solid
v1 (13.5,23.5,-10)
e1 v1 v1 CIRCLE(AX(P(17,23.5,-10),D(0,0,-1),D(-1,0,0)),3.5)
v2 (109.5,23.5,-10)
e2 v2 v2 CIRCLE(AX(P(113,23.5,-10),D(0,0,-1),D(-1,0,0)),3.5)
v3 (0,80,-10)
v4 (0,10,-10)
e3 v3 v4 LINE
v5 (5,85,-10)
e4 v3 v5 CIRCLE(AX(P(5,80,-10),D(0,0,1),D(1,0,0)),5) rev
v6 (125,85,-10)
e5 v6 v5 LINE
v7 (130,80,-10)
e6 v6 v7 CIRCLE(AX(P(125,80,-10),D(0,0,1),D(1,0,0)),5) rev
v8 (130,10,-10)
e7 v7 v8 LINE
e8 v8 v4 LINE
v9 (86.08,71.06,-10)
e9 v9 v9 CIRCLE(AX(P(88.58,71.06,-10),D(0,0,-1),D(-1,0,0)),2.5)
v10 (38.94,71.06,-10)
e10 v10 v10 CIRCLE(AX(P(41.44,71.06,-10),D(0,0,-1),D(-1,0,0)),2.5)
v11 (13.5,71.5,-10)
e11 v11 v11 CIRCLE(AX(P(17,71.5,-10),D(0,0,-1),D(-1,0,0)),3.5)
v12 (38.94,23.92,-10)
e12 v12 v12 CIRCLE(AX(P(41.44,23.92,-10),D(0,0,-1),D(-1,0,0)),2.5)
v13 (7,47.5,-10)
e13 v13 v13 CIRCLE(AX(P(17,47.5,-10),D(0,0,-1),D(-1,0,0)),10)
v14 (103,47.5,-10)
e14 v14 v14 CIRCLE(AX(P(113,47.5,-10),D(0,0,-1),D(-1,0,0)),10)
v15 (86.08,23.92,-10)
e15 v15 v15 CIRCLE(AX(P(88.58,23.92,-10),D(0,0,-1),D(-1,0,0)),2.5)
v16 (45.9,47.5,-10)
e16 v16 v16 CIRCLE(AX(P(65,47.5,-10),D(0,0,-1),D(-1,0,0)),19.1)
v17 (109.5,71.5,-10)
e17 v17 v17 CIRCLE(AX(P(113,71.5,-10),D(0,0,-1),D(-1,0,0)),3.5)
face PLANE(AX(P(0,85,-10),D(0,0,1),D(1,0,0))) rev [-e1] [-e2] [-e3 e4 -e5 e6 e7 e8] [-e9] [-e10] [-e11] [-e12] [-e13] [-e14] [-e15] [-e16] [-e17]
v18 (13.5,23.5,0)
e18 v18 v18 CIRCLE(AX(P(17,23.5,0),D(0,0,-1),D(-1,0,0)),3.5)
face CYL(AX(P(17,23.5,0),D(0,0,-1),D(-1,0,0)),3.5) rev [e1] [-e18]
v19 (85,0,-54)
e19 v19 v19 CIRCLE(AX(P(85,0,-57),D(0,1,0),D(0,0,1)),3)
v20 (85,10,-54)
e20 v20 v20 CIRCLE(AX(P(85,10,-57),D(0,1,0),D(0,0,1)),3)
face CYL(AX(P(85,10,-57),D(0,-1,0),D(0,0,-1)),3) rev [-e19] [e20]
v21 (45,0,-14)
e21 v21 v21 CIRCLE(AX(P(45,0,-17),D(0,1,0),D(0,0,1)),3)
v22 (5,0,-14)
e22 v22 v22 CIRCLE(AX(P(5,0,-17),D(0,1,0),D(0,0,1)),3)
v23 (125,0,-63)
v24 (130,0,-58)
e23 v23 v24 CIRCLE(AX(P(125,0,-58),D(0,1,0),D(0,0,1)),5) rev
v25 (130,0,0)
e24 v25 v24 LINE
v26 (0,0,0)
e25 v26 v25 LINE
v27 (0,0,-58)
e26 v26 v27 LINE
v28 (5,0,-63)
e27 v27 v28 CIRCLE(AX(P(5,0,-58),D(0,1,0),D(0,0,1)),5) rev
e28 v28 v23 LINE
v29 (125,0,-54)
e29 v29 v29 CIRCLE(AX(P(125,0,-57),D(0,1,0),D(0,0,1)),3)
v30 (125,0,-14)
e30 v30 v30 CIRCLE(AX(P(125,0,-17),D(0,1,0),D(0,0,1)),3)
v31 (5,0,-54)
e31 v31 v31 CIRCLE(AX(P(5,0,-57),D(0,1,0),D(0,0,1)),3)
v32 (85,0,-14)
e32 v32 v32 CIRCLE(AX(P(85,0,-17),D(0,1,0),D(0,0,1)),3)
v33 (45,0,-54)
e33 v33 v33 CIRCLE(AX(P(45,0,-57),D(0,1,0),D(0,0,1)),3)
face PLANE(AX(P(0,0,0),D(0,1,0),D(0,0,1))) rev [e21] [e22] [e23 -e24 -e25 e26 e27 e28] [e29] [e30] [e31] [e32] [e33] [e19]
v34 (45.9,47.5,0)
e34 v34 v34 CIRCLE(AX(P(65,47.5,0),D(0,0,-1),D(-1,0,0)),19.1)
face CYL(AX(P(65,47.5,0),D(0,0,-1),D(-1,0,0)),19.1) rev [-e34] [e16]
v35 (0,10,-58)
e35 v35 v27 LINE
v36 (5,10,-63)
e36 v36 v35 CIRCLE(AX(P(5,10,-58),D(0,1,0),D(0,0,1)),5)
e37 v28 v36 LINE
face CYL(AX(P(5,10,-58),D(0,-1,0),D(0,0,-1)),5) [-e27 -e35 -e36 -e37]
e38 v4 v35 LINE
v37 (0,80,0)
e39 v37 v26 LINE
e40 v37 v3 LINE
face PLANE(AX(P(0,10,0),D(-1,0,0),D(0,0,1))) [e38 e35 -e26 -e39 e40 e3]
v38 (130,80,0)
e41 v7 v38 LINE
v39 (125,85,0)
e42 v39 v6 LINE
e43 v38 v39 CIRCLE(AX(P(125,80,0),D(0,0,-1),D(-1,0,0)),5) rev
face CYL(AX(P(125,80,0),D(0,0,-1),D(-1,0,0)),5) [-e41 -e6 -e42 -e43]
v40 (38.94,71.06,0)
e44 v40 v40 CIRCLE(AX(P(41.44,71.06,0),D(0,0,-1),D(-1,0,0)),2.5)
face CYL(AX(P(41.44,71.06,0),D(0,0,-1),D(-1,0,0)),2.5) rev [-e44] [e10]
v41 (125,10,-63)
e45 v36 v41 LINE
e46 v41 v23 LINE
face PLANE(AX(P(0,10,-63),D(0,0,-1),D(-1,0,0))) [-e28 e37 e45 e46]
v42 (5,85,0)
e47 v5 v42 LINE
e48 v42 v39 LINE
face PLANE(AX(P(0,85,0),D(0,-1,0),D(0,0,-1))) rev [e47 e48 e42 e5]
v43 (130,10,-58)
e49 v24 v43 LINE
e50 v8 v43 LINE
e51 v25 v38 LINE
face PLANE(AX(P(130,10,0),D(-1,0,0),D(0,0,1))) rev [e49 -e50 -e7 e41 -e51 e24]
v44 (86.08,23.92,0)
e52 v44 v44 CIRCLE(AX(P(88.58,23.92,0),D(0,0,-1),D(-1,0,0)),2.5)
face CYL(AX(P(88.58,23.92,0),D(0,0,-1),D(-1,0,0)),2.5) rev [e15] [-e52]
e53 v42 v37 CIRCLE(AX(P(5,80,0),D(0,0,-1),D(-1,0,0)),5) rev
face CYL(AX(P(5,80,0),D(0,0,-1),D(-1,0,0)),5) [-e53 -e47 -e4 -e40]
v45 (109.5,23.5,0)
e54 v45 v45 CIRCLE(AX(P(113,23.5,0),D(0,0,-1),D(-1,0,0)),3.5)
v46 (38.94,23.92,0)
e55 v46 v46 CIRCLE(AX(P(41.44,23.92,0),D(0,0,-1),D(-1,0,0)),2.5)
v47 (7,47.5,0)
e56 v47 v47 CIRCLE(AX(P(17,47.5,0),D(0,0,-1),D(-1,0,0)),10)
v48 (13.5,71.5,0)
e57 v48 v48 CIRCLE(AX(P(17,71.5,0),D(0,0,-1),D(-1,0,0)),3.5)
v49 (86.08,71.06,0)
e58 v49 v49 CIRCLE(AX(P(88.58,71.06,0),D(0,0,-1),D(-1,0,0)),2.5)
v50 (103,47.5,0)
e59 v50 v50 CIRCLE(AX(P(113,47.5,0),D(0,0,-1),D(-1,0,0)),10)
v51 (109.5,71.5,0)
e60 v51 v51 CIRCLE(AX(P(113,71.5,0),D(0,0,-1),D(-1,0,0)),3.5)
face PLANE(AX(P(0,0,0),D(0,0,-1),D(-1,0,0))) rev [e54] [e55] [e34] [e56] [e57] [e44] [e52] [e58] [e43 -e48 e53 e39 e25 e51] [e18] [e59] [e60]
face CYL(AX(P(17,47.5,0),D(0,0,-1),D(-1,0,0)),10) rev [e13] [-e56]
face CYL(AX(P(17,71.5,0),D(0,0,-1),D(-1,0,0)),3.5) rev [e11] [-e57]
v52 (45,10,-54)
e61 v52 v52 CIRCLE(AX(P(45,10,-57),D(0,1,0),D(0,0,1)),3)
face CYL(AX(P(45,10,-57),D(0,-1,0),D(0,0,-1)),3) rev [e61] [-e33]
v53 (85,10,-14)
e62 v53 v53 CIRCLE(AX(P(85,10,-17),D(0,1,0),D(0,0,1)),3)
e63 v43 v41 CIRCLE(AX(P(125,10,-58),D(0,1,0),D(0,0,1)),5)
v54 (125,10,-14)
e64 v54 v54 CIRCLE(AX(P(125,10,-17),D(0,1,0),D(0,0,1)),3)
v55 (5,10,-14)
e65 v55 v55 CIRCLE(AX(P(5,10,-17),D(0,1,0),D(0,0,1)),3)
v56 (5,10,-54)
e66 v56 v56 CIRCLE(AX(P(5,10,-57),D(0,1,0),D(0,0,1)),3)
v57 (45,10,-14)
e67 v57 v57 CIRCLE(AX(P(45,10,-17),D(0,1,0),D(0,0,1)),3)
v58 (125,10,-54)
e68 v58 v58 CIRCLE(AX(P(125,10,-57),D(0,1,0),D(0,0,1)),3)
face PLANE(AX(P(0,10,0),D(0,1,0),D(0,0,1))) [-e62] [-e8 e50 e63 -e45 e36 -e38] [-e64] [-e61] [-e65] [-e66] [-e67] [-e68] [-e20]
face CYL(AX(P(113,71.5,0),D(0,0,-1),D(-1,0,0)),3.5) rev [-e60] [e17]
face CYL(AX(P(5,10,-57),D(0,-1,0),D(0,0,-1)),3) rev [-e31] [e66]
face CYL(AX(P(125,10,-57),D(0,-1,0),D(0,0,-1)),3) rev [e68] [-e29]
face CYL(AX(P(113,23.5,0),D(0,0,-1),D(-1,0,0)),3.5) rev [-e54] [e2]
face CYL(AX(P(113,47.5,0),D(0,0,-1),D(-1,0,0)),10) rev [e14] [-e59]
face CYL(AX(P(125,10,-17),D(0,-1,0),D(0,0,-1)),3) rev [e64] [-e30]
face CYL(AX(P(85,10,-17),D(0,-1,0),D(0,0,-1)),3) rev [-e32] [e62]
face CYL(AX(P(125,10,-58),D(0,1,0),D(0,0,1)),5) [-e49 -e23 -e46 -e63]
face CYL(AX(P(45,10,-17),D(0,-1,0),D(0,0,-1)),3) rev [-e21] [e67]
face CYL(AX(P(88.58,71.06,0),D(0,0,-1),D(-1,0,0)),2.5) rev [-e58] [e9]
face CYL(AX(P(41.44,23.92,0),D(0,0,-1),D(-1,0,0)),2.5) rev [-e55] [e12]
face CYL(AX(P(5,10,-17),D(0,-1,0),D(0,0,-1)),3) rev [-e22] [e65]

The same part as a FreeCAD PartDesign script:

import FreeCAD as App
import Part
import Sketcher
Q = App.Units.Quantity


def edges_at(feature, points):
    """Names of the edges that pass closest to the given points."""
    edges = feature.Shape.Edges
    near = lambda p: min(range(len(edges)), key=lambda i: edges[i].distToShape(Part.Vertex(*p))[0])
    return sorted({f"Edge{near(p) + 1}" for p in points})


def add_polygon(sketch, points):
    """Adds a closed chain of lines whose ends are joined by coincident constraints."""
    first, n = sketch.GeometryCount, len(points)
    for a, b in zip(points, points[1:] + points[:1]):
        sketch.addGeometry(Part.LineSegment(App.Vector(*a, 0), App.Vector(*b, 0)), False)
    for i in range(n):
        sketch.addConstraint(Sketcher.Constraint("Coincident", first + i, 2, first + (i + 1) % n, 1))

doc = App.newDocument("Part")
body = doc.addObject("PartDesign::Body", "Body")

# Sketch on XZ plane
sketch1 = doc.addObject("Sketcher::SketchObject", "Sketch")
body.addObject(sketch1)
sketch1.AttachmentSupport = (doc.XZ_Plane, [""])
sketch1.MapMode = "FlatFace"
add_polygon(sketch1, [(0, -63), (0, 37), (130, 37), (130, -63)])  # lines 0-3
sketch1.addGeometry(Part.Circle(App.Vector(5, -17, 0), App.Vector(0, 0, 1), 3), False)  # 4
sketch1.addGeometry(Part.Circle(App.Vector(45, -17, 0), App.Vector(0, 0, 1), 3), False)  # 5
sketch1.addGeometry(Part.Circle(App.Vector(85, -17, 0), App.Vector(0, 0, 1), 3), False)  # 6
sketch1.addGeometry(Part.Circle(App.Vector(125, -17, 0), App.Vector(0, 0, 1), 3), False)  # 7
sketch1.addGeometry(Part.Circle(App.Vector(5, -57, 0), App.Vector(0, 0, 1), 3), False)  # 8
sketch1.addGeometry(Part.Circle(App.Vector(45, -57, 0), App.Vector(0, 0, 1), 3), False)  # 9
sketch1.addGeometry(Part.Circle(App.Vector(85, -57, 0), App.Vector(0, 0, 1), 3), False)  # 10
sketch1.addGeometry(Part.Circle(App.Vector(125, -57, 0), App.Vector(0, 0, 1), 3), False)  # 11
sketch1.addConstraint(Sketcher.Constraint("Vertical", 0))
sketch1.addConstraint(Sketcher.Constraint("Horizontal", 1))
sketch1.addConstraint(Sketcher.Constraint("Vertical", 2))
sketch1.addConstraint(Sketcher.Constraint("Horizontal", 3))
sketch1.addConstraint(Sketcher.Constraint("Equal", 4, 5))
sketch1.addConstraint(Sketcher.Constraint("Equal", 5, 6))
sketch1.addConstraint(Sketcher.Constraint("Equal", 6, 7))
sketch1.addConstraint(Sketcher.Constraint("Equal", 7, 8))
sketch1.addConstraint(Sketcher.Constraint("Equal", 8, 9))
sketch1.addConstraint(Sketcher.Constraint("Equal", 9, 10))
sketch1.addConstraint(Sketcher.Constraint("Equal", 10, 11))
sketch1.addConstraint(Sketcher.Constraint("PointOnObject", 0, 2, -2))
sketch1.addConstraint(Sketcher.Constraint("Horizontal", 4, 3, 5, 3))
sketch1.addConstraint(Sketcher.Constraint("Horizontal", 5, 3, 6, 3))
sketch1.addConstraint(Sketcher.Constraint("Horizontal", 6, 3, 7, 3))
sketch1.addConstraint(Sketcher.Constraint("Horizontal", 8, 3, 9, 3))
sketch1.addConstraint(Sketcher.Constraint("Horizontal", 9, 3, 10, 3))
sketch1.addConstraint(Sketcher.Constraint("Horizontal", 10, 3, 11, 3))
sketch1.addConstraint(Sketcher.Constraint("Vertical", 4, 3, 8, 3))
sketch1.addConstraint(Sketcher.Constraint("Vertical", 5, 3, 9, 3))
sketch1.addConstraint(Sketcher.Constraint("Vertical", 6, 3, 10, 3))
sketch1.addConstraint(Sketcher.Constraint("Vertical", 7, 3, 11, 3))
sketch1.addConstraint(Sketcher.Constraint("Diameter", 4, Q("6 mm")))
sketch1.addConstraint(Sketcher.Constraint("DistanceX", 1, 1, 1, 2, Q("130 mm")))
sketch1.addConstraint(Sketcher.Constraint("DistanceY", 0, 1, 0, 2, Q("100 mm")))
sketch1.addConstraint(Sketcher.Constraint("DistanceX", -1, 1, 4, 3, Q("5 mm")))
sketch1.addConstraint(Sketcher.Constraint("DistanceY", 4, 3, -1, 1, Q("17 mm")))
sketch1.addConstraint(Sketcher.Constraint("DistanceX", -1, 1, 5, 3, Q("45 mm")))
sketch1.addConstraint(Sketcher.Constraint("DistanceX", -1, 1, 6, 3, Q("85 mm")))
sketch1.addConstraint(Sketcher.Constraint("DistanceX", -1, 1, 7, 3, Q("125 mm")))
sketch1.addConstraint(Sketcher.Constraint("DistanceY", 8, 3, -1, 1, Q("57 mm")))
sketch1.addConstraint(Sketcher.Constraint("DistanceY", -1, 1, 0, 2, Q("37 mm")))
pad1 = doc.addObject("PartDesign::Pad", "Pad")
body.addObject(pad1)
pad1.Profile = sketch1
pad1.Length = 10
pad1.Reversed = True

# Sketch on XZ plane
sketch2 = doc.addObject("Sketcher::SketchObject", "Sketch001")
body.addObject(sketch2)
sketch2.AttachmentSupport = (doc.XZ_Plane, [""])
sketch2.MapMode = "FlatFace"
sketch2.AttachmentOffset = App.Placement(App.Vector(0, 0, -10), App.Rotation())
add_polygon(sketch2, [(0, 29), (0, 37), (130, 37), (130, 29)])  # lines 0-3
sketch2.addConstraint(Sketcher.Constraint("Vertical", 0))
sketch2.addConstraint(Sketcher.Constraint("Horizontal", 1))
sketch2.addConstraint(Sketcher.Constraint("Vertical", 2))
sketch2.addConstraint(Sketcher.Constraint("Horizontal", 3))
sketch2.addConstraint(Sketcher.Constraint("PointOnObject", 0, 2, -2))
sketch2.addConstraint(Sketcher.Constraint("DistanceX", 1, 1, 1, 2, Q("130 mm")))
sketch2.addConstraint(Sketcher.Constraint("DistanceY", -1, 1, 0, 2, Q("37 mm")))
sketch2.addConstraint(Sketcher.Constraint("DistanceY", 0, 1, 0, 2, Q("8.023003 mm")))
pad2 = doc.addObject("PartDesign::Pad", "Pad001")
body.addObject(pad2)
pad2.Profile = sketch2
pad2.Length = 75
pad2.Reversed = True
doc.recompute()

fillet = doc.addObject("PartDesign::Fillet", "Fillet")
body.addObject(fillet)
fillet.Base = (pad2, edges_at(pad2, [
    (0, 85, 32.988),
    (130, 85, 32.988),
    (130, 5, -63),
    (0, 5, -63),
]))
fillet.Radius = 5

# Sketch on XZ plane
sketch3 = doc.addObject("Sketcher::SketchObject", "Sketch002")
body.addObject(sketch3)
sketch3.AttachmentSupport = (doc.XZ_Plane, [""])
sketch3.MapMode = "FlatFace"
sketch3.AttachmentOffset = App.Placement(App.Vector(0, 0, -85), App.Rotation())
add_polygon(sketch3, [(0, 29), (0, 37), (130, 37), (130, 29)])  # lines 0-3
sketch3.addConstraint(Sketcher.Constraint("Vertical", 0))
sketch3.addConstraint(Sketcher.Constraint("Horizontal", 1))
sketch3.addConstraint(Sketcher.Constraint("Vertical", 2))
sketch3.addConstraint(Sketcher.Constraint("Horizontal", 3))
sketch3.addConstraint(Sketcher.Constraint("PointOnObject", 0, 2, -2))
sketch3.addConstraint(Sketcher.Constraint("DistanceX", 1, 1, 1, 2, Q("130 mm")))
sketch3.addConstraint(Sketcher.Constraint("DistanceY", -1, 1, 0, 2, Q("37 mm")))
sketch3.addConstraint(Sketcher.Constraint("DistanceY", 0, 1, 0, 2, Q("8.023003 mm")))
pocket1 = doc.addObject("PartDesign::Pocket", "Pocket")
body.addObject(pocket1)
pocket1.Profile = sketch3
pocket1.Length = 75
pocket1.Reversed = True

# Sketch on XY plane
sketch4 = doc.addObject("Sketcher::SketchObject", "Sketch003")
body.addObject(sketch4)
sketch4.AttachmentSupport = (doc.XY_Plane, [""])
sketch4.MapMode = "FlatFace"
sketch4.AttachmentOffset = App.Placement(App.Vector(0, 0, 37), App.Rotation())
add_polygon(sketch4, [(0, 10), (0, 0), (130, 0), (130, 10)])  # lines 0-3
sketch4.addConstraint(Sketcher.Constraint("Vertical", 0))
sketch4.addConstraint(Sketcher.Constraint("Horizontal", 1))
sketch4.addConstraint(Sketcher.Constraint("Vertical", 2))
sketch4.addConstraint(Sketcher.Constraint("Horizontal", 3))
sketch4.addConstraint(Sketcher.Constraint("Coincident", 0, 2, -1, 1))
sketch4.addConstraint(Sketcher.Constraint("DistanceX", 1, 1, 1, 2, Q("130 mm")))
sketch4.addConstraint(Sketcher.Constraint("DistanceY", 0, 2, 0, 1, Q("10 mm")))
pocket2 = doc.addObject("PartDesign::Pocket", "Pocket001")
body.addObject(pocket2)
pocket2.Profile = sketch4
pocket2.Length = 37

# Sketch on XZ plane
sketch5 = doc.addObject("Sketcher::SketchObject", "Sketch004")
body.addObject(sketch5)
sketch5.AttachmentSupport = (doc.XZ_Plane, [""])
sketch5.MapMode = "FlatFace"
sketch5.AttachmentOffset = App.Placement(App.Vector(0, 0, -10), App.Rotation())
add_polygon(sketch5, [(0, -10), (0, 0), (130, 0), (130, -10)])  # lines 0-3
sketch5.addConstraint(Sketcher.Constraint("Vertical", 0))
sketch5.addConstraint(Sketcher.Constraint("Horizontal", 1))
sketch5.addConstraint(Sketcher.Constraint("Vertical", 2))
sketch5.addConstraint(Sketcher.Constraint("Horizontal", 3))
sketch5.addConstraint(Sketcher.Constraint("Coincident", 0, 2, -1, 1))
sketch5.addConstraint(Sketcher.Constraint("DistanceX", 1, 1, 1, 2, Q("130 mm")))
sketch5.addConstraint(Sketcher.Constraint("DistanceY", 0, 1, 0, 2, Q("10 mm")))
pad3 = doc.addObject("PartDesign::Pad", "Pad002")
body.addObject(pad3)
pad3.Profile = sketch5
pad3.Length = 75
pad3.Reversed = True
doc.recompute()

fillet2 = doc.addObject("PartDesign::Fillet", "Fillet001")
body.addObject(fillet2)
fillet2.Base = (pad3, edges_at(pad3, [(130, 85, -5), (0, 85, -5)]))
fillet2.Radius = 5

# Sketch on XY plane
sketch6 = doc.addObject("Sketcher::SketchObject", "Sketch005")
body.addObject(sketch6)
sketch6.AttachmentSupport = (doc.XY_Plane, [""])
sketch6.MapMode = "FlatFace"
sketch6.AttachmentOffset = App.Placement(App.Vector(0, 0, -10), App.Rotation())
sketch6.addGeometry(Part.Circle(App.Vector(113, 47.5, 0), App.Vector(0, 0, 1), 10), False)
sketch6.addGeometry(Part.Circle(App.Vector(65, 47.5, 0), App.Vector(0, 0, 1), 7.5), False)
sketch6.addGeometry(Part.Circle(App.Vector(17, 47.5, 0), App.Vector(0, 0, 1), 10), False)
sketch6.addGeometry(Part.Circle(App.Vector(113, 71.5, 0), App.Vector(0, 0, 1), 3.5), False)
sketch6.addGeometry(Part.Circle(App.Vector(65, 74, 0), App.Vector(0, 0, 1), 3.5), False)
sketch6.addGeometry(Part.Circle(App.Vector(17, 71.5, 0), App.Vector(0, 0, 1), 3.5), False)
sketch6.addGeometry(Part.Circle(App.Vector(17, 23.5, 0), App.Vector(0, 0, 1), 3.5), False)
sketch6.addGeometry(Part.Circle(App.Vector(65, 21, 0), App.Vector(0, 0, 1), 3.5), False)
sketch6.addGeometry(Part.Circle(App.Vector(113, 23.5, 0), App.Vector(0, 0, 1), 3.5), False)
sketch6.addGeometry(Part.Circle(App.Vector(88.6, 71.1, 0), App.Vector(0, 0, 1), 2.5), False)
sketch6.addGeometry(Part.Circle(App.Vector(41.4, 71.1, 0), App.Vector(0, 0, 1), 2.5), False)
sketch6.addGeometry(Part.Circle(App.Vector(41.4, 23.9, 0), App.Vector(0, 0, 1), 2.5), False)
sketch6.addGeometry(Part.Circle(App.Vector(88.6, 23.9, 0), App.Vector(0, 0, 1), 2.5), False)
sketch6.addConstraint(Sketcher.Constraint("Equal", 0, 2))
sketch6.addConstraint(Sketcher.Constraint("Equal", 3, 4))
sketch6.addConstraint(Sketcher.Constraint("Equal", 4, 5))
sketch6.addConstraint(Sketcher.Constraint("Equal", 5, 6))
sketch6.addConstraint(Sketcher.Constraint("Equal", 6, 7))
sketch6.addConstraint(Sketcher.Constraint("Equal", 7, 8))
sketch6.addConstraint(Sketcher.Constraint("Equal", 9, 10))
sketch6.addConstraint(Sketcher.Constraint("Equal", 10, 11))
sketch6.addConstraint(Sketcher.Constraint("Equal", 11, 12))
sketch6.addConstraint(Sketcher.Constraint("Horizontal", 0, 3, 1, 3))
sketch6.addConstraint(Sketcher.Constraint("Horizontal", 1, 3, 2, 3))
sketch6.addConstraint(Sketcher.Constraint("Horizontal", 3, 3, 5, 3))
sketch6.addConstraint(Sketcher.Constraint("Horizontal", 6, 3, 8, 3))
sketch6.addConstraint(Sketcher.Constraint("Horizontal", 9, 3, 10, 3))
sketch6.addConstraint(Sketcher.Constraint("Horizontal", 11, 3, 12, 3))
sketch6.addConstraint(Sketcher.Constraint("Vertical", 0, 3, 3, 3))
sketch6.addConstraint(Sketcher.Constraint("Vertical", 1, 3, 4, 3))
sketch6.addConstraint(Sketcher.Constraint("Vertical", 2, 3, 5, 3))
sketch6.addConstraint(Sketcher.Constraint("Vertical", 5, 3, 6, 3))
sketch6.addConstraint(Sketcher.Constraint("Vertical", 4, 3, 7, 3))
sketch6.addConstraint(Sketcher.Constraint("Vertical", 3, 3, 8, 3))
sketch6.addConstraint(Sketcher.Constraint("Vertical", 10, 3, 11, 3))
sketch6.addConstraint(Sketcher.Constraint("Vertical", 9, 3, 12, 3))
sketch6.addConstraint(Sketcher.Constraint("Diameter", 0, Q("20 mm")))
sketch6.addConstraint(Sketcher.Constraint("Diameter", 1, Q("15 mm")))
sketch6.addConstraint(Sketcher.Constraint("Diameter", 3, Q("7 mm")))
sketch6.addConstraint(Sketcher.Constraint("Diameter", 9, Q("5 mm")))
sketch6.addConstraint(Sketcher.Constraint("DistanceX", -1, 1, 0, 3, Q("113 mm")))
sketch6.addConstraint(Sketcher.Constraint("DistanceX", -1, 1, 1, 3, Q("65 mm")))
sketch6.addConstraint(Sketcher.Constraint("DistanceX", -1, 1, 2, 3, Q("17 mm")))
sketch6.addConstraint(Sketcher.Constraint("DistanceY", -1, 1, 7, 3, Q("21 mm")))
sketch6.addConstraint(Sketcher.Constraint("DistanceY", 0, 3, 3, 3, Q("24 mm")))
sketch6.addConstraint(Sketcher.Constraint("DistanceY", 6, 3, 2, 3, Q("24 mm")))
sketch6.addConstraint(Sketcher.Constraint("DistanceY", -1, 1, 0, 3, Q("47.5 mm")))
sketch6.addConstraint(Sketcher.Constraint("DistanceY", -1, 1, 4, 3, Q("74.04 mm")))
sketch6.addConstraint(Sketcher.Constraint("DistanceX", -1, 1, 9, 3, Q("88.58 mm")))
sketch6.addConstraint(Sketcher.Constraint("DistanceY", -1, 1, 9, 3, Q("71.06 mm")))
sketch6.addConstraint(Sketcher.Constraint("DistanceX", -1, 1, 10, 3, Q("41.44 mm")))
sketch6.addConstraint(Sketcher.Constraint("DistanceY", -1, 1, 11, 3, Q("23.92 mm")))
pocket3 = doc.addObject("PartDesign::Pocket", "Pocket002")
body.addObject(pocket3)
pocket3.Profile = sketch6
pocket3.Length = 10
pocket3.Reversed = True

# Sketch on XY plane
sketch7 = doc.addObject("Sketcher::SketchObject", "Sketch006")
body.addObject(sketch7)
sketch7.AttachmentSupport = (doc.XY_Plane, [""])
sketch7.MapMode = "FlatFace"
sketch7.AttachmentOffset = App.Placement(App.Vector(0, 0, -10), App.Rotation())
sketch7.addGeometry(Part.Circle(App.Vector(65, 48, 0), App.Vector(0, 0, 1), 19), False)
sketch7.addConstraint(Sketcher.Constraint("Diameter", 0, Q("38.2 mm")))
sketch7.addConstraint(Sketcher.Constraint("DistanceX", -1, 1, 0, 3, Q("65 mm")))
sketch7.addConstraint(Sketcher.Constraint("DistanceY", -1, 1, 0, 3, Q("47.5 mm")))
pocket4 = doc.addObject("PartDesign::Pocket", "Pocket003")
body.addObject(pocket4)
pocket4.Profile = sketch7
pocket4.Length = 10
pocket4.Reversed = True

# Sketch on XY plane
sketch8 = doc.addObject("Sketcher::SketchObject", "Sketch007")
body.addObject(sketch8)
sketch8.AttachmentSupport = (doc.XY_Plane, [""])
sketch8.MapMode = "FlatFace"
sketch8.AttachmentOffset = App.Placement(App.Vector(0, 0, -10), App.Rotation())
sketch8.addGeometry(Part.Circle(App.Vector(65, 74, 0), App.Vector(0, 0, 1), 3.5), False)
sketch8.addGeometry(Part.Circle(App.Vector(65, 21, 0), App.Vector(0, 0, 1), 3.5), False)
sketch8.addConstraint(Sketcher.Constraint("Equal", 0, 1))
sketch8.addConstraint(Sketcher.Constraint("Vertical", 0, 3, 1, 3))
sketch8.addConstraint(Sketcher.Constraint("Diameter", 0, Q("7 mm")))
sketch8.addConstraint(Sketcher.Constraint("DistanceX", -1, 1, 0, 3, Q("65 mm")))
sketch8.addConstraint(Sketcher.Constraint("DistanceY", -1, 1, 1, 3, Q("21 mm")))
sketch8.addConstraint(Sketcher.Constraint("DistanceY", -1, 1, 0, 3, Q("74.04 mm")))
pad4 = doc.addObject("PartDesign::Pad", "Pad003")
body.addObject(pad4)
pad4.Profile = sketch8
pad4.Length = 10

doc.recompute()
